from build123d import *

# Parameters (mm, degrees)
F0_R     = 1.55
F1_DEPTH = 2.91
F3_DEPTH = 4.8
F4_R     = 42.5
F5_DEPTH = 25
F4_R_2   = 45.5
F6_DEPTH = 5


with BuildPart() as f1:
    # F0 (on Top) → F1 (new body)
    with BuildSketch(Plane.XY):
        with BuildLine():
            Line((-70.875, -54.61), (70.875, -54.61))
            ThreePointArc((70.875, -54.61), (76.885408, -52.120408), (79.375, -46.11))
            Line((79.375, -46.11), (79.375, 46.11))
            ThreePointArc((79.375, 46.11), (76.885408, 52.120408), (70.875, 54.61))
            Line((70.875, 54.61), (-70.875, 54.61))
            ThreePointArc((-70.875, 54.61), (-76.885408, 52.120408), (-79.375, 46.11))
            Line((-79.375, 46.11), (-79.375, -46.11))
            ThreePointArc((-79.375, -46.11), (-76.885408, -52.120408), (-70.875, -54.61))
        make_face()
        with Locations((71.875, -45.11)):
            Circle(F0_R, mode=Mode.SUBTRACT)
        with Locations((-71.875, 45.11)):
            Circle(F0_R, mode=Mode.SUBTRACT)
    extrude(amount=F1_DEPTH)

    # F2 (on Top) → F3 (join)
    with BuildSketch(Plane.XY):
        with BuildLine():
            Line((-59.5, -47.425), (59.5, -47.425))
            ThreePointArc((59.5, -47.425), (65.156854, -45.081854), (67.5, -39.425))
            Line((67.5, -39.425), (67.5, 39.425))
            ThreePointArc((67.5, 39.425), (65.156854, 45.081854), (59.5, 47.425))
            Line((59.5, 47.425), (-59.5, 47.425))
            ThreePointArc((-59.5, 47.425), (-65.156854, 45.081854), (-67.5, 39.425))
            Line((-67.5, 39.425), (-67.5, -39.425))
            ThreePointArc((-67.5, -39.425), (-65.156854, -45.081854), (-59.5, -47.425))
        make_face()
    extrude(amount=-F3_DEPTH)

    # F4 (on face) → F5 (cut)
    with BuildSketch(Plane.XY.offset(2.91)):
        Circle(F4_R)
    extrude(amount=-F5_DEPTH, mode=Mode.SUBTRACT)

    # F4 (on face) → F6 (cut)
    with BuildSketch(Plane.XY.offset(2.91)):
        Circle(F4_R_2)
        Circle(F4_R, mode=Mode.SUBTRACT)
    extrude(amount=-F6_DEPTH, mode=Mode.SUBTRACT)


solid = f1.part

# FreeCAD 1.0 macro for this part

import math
import FreeCAD as App
import Part
import Sketcher
from FreeCAD import Vector
Q = App.Units.Quantity

doc = App.newDocument("Part")
body = doc.addObject("PartDesign::Body", "Body")

# Sketch on XY plane
sketch1 = doc.addObject("Sketcher::SketchObject", "Sketch")
body.addObject(sketch1)
sketch1.AttachmentSupport = (doc.XY_Plane, [""])
sketch1.MapMode = "FlatFace"
sketch1.addGeometry([
    Part.LineSegment(Vector(-70.9, -54.6, 0), Vector(70.9, -54.6, 0)),  # 0
    Part.ArcOfCircle(Part.Circle(Vector(70.9, -46.1, 0), Vector(0, 0, 1), 8.5), math.radians(-90), math.radians(0)),  # 1
    Part.LineSegment(Vector(79.4, -46.1, 0), Vector(79.4, 46.1, 0)),  # 2
    Part.ArcOfCircle(Part.Circle(Vector(70.9, 46.1, 0), Vector(0, 0, 1), 8.5), math.radians(0), math.radians(90)),  # 3
    Part.LineSegment(Vector(70.9, 54.6, 0), Vector(-70.9, 54.6, 0)),  # 4
    Part.ArcOfCircle(Part.Circle(Vector(-70.9, 46.1, 0), Vector(0, 0, 1), 8.5), math.radians(90), math.radians(180)),  # 5
    Part.LineSegment(Vector(-79.4, 46.1, 0), Vector(-79.4, -46.1, 0)),  # 6
    Part.ArcOfCircle(Part.Circle(Vector(-70.9, -46.1, 0), Vector(0, 0, 1), 8.5), math.radians(180), math.radians(270)),  # 7
    Part.Circle(Vector(71.9, -45.1, 0), Vector(0, 0, 1), 1.6),  # 8
    Part.Circle(Vector(-71.9, 45.1, 0), Vector(0, 0, 1), 1.6),  # 9
], False)
sketch1.addConstraint([
    Sketcher.Constraint("Tangent", 0, 2, 1, 1),
    Sketcher.Constraint("Tangent", 1, 2, 2, 1),
    Sketcher.Constraint("Tangent", 2, 2, 3, 1),
    Sketcher.Constraint("Tangent", 3, 2, 4, 1),
    Sketcher.Constraint("Tangent", 4, 2, 5, 1),
    Sketcher.Constraint("Tangent", 5, 2, 6, 1),
    Sketcher.Constraint("Tangent", 6, 2, 7, 1),
    Sketcher.Constraint("Tangent", 7, 2, 0, 1),
    Sketcher.Constraint("Horizontal", 0),
    Sketcher.Constraint("Vertical", 2),
    Sketcher.Constraint("Horizontal", 4),
    Sketcher.Constraint("Vertical", 6),
    Sketcher.Constraint("Equal", 1, 3),
    Sketcher.Constraint("Equal", 3, 5),
    Sketcher.Constraint("Equal", 5, 7),
    Sketcher.Constraint("Equal", 8, 9),
    Sketcher.Constraint("Symmetric", 1, 3, 5, 3, -1, 1),
    Sketcher.Constraint("Symmetric", 8, 3, 9, 3, -1, 1),
    Sketcher.Constraint("Diameter", 8, Q("3.1 mm")),
    Sketcher.Constraint("Radius", 1, Q("8.499999 mm")),
    Sketcher.Constraint("DistanceX", 1, 3, 8, 3, Q("0.999999 mm")),
    Sketcher.Constraint("DistanceY", 1, 3, 8, 3, Q("1.000001 mm")),
    Sketcher.Constraint("DistanceX", 0, 1, 0, 2, Q("141.75 mm")),
    Sketcher.Constraint("DistanceY", 2, 1, 2, 2, Q("92.22 mm")),
])
pad1 = doc.addObject("PartDesign::Pad", "Pad")
body.addObject(pad1)
pad1.Profile = sketch1
pad1.Length = 2.91

# Sketch on XY plane
sketch2 = doc.addObject("Sketcher::SketchObject", "Sketch001")
body.addObject(sketch2)
sketch2.AttachmentSupport = (doc.XY_Plane, [""])
sketch2.MapMode = "FlatFace"
sketch2.addGeometry([
    Part.LineSegment(Vector(-60, -47, 0), Vector(60, -47, 0)),  # 0
    Part.ArcOfCircle(Part.Circle(Vector(59, -39, 0), Vector(0, 0, 1), 8), math.radians(-90), math.radians(0)),  # 1
    Part.LineSegment(Vector(68, -39, 0), Vector(68, 39, 0)),  # 2
    Part.ArcOfCircle(Part.Circle(Vector(59, 39, 0), Vector(0, 0, 1), 8), math.radians(0), math.radians(90)),  # 3
    Part.LineSegment(Vector(60, 47, 0), Vector(-60, 47, 0)),  # 4
    Part.ArcOfCircle(Part.Circle(Vector(-59, 39, 0), Vector(0, 0, 1), 8), math.radians(90), math.radians(180)),  # 5
    Part.LineSegment(Vector(-68, 39, 0), Vector(-68, -39, 0)),  # 6
    Part.ArcOfCircle(Part.Circle(Vector(-59, -39, 0), Vector(0, 0, 1), 8), math.radians(-180), math.radians(-90)),  # 7
], False)
sketch2.addConstraint([
    Sketcher.Constraint("Tangent", 0, 2, 1, 1),
    Sketcher.Constraint("Tangent", 1, 2, 2, 1),
    Sketcher.Constraint("Tangent", 2, 2, 3, 1),
    Sketcher.Constraint("Tangent", 3, 2, 4, 1),
    Sketcher.Constraint("Tangent", 4, 2, 5, 1),
    Sketcher.Constraint("Tangent", 5, 2, 6, 1),
    Sketcher.Constraint("Tangent", 6, 2, 7, 1),
    Sketcher.Constraint("Tangent", 7, 2, 0, 1),
    Sketcher.Constraint("Horizontal", 0),
    Sketcher.Constraint("Vertical", 2),
    Sketcher.Constraint("Horizontal", 4),
    Sketcher.Constraint("Vertical", 6),
    Sketcher.Constraint("Equal", 1, 3),
    Sketcher.Constraint("Equal", 3, 5),
    Sketcher.Constraint("Equal", 5, 7),
    Sketcher.Constraint("Symmetric", 1, 3, 5, 3, -1, 1),
    Sketcher.Constraint("Radius", 1, Q("8.000001 mm")),
    Sketcher.Constraint("DistanceX", 0, 1, 0, 2, Q("119 mm")),
    Sketcher.Constraint("DistanceY", 2, 1, 2, 2, Q("78.85 mm")),
])
pad2 = doc.addObject("PartDesign::Pad", "Pad001")
body.addObject(pad2)
pad2.Profile = sketch2
pad2.Length = 4.8
pad2.Reversed = True

# Sketch on XY plane
sketch3 = doc.addObject("Sketcher::SketchObject", "Sketch002")
body.addObject(sketch3)
sketch3.AttachmentSupport = (doc.XY_Plane, [""])
sketch3.MapMode = "FlatFace"
sketch3.AttachmentOffset = App.Placement(Vector(0, 0, 2.91), App.Rotation())
sketch3.addGeometry(Part.Circle(Vector(0, 0, 0), Vector(0, 0, 1), 42), False)
sketch3.addConstraint([
    Sketcher.Constraint("Coincident", 0, 3, -1, 1),
    Sketcher.Constraint("Diameter", 0, Q("85 mm")),
])
pocket1 = doc.addObject("PartDesign::Pocket", "Pocket")
body.addObject(pocket1)
pocket1.Profile = sketch3
pocket1.Length = 25

# Sketch on XY plane
sketch4 = doc.addObject("Sketcher::SketchObject", "Sketch003")
body.addObject(sketch4)
sketch4.AttachmentSupport = (doc.XY_Plane, [""])
sketch4.MapMode = "FlatFace"
sketch4.AttachmentOffset = App.Placement(Vector(0, 0, 2.91), App.Rotation())
sketch4.addGeometry([
    Part.Circle(Vector(0, 0, 0), Vector(0, 0, 1), 46),
    Part.Circle(Vector(0, 0, 0), Vector(0, 0, 1), 42),
], False)
sketch4.addConstraint([
    Sketcher.Constraint("Coincident", 0, 3, -1, 1),
    Sketcher.Constraint("Coincident", 1, 3, -1, 1),
    Sketcher.Constraint("Diameter", 0, Q("91 mm")),
    Sketcher.Constraint("Diameter", 1, Q("85 mm")),
])
pocket2 = doc.addObject("PartDesign::Pocket", "Pocket001")
body.addObject(pocket2)
pocket2.Profile = sketch4
pocket2.Length = 5

doc.recompute()
